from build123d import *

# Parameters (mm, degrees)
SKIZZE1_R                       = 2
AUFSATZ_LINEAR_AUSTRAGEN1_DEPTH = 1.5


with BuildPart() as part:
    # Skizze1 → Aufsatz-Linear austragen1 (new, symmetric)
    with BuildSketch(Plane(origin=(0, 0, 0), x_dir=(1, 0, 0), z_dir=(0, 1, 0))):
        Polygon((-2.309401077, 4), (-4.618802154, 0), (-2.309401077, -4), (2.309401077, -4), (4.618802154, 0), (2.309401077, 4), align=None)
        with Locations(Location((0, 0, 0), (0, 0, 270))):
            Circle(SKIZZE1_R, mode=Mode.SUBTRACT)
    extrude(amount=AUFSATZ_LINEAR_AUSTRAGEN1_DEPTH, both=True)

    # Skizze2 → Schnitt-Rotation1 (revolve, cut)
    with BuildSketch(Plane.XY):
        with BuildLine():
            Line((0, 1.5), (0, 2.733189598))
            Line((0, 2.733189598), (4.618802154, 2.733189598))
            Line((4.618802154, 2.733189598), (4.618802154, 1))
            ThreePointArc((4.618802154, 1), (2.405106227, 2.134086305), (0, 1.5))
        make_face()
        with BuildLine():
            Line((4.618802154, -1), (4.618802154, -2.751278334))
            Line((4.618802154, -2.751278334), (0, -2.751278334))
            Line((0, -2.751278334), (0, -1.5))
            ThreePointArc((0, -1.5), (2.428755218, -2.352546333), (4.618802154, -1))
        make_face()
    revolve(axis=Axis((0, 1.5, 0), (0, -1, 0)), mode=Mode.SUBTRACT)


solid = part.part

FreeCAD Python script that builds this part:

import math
import FreeCAD as App
import Part
import Sketcher

V = App.Vector
Q = App.Units.Quantity

doc = App.newDocument("Part")
body = doc.addObject("PartDesign::Body", "Body")

sketch1 = doc.addObject("Sketcher::SketchObject", "Sketch")
body.addObject(sketch1)
sketch1.AttachmentSupport = (doc.XZ_Plane, [""])
sketch1.MapMode = "FlatFace"
sketch1.addGeometry([
    Part.LineSegment(V(-2.3, -4, 0), V(-4.6, 0, 0)),
    Part.LineSegment(V(-4.6, 0, 0), V(-2.3, 4, 0)),
    Part.LineSegment(V(-2.3, 4, 0), V(2.3, 4, 0)),
    Part.LineSegment(V(2.3, 4, 0), V(4.6, 0, 0)),
    Part.LineSegment(V(4.6, 0, 0), V(2.3, -4, 0)),
    Part.LineSegment(V(2.3, -4, 0), V(-2.3, -4, 0)),
    Part.Circle(V(0, 0, 0), V(0, 0, 1), 2),
], False)
sketch1.addConstraint([
    Sketcher.Constraint("Coincident", 0, 2, 1, 1),
    Sketcher.Constraint("Coincident", 1, 2, 2, 1),
    Sketcher.Constraint("Coincident", 2, 2, 3, 1),
    Sketcher.Constraint("Coincident", 3, 2, 4, 1),
    Sketcher.Constraint("Coincident", 4, 2, 5, 1),
    Sketcher.Constraint("Coincident", 5, 2, 0, 1),
    Sketcher.Constraint("Horizontal", 2),
    Sketcher.Constraint("Horizontal", 5),
    Sketcher.Constraint("Coincident", 6, 3, -1, 1),
    Sketcher.Constraint("Symmetric", 0, 2, 3, 2, -1, 1),
    Sketcher.Constraint("Symmetric", 1, 2, 4, 2, -1, 1),
    Sketcher.Constraint("PointOnObject", 0, 2, -1),
    Sketcher.Constraint("Parallel", 0, 3),
    Sketcher.Constraint("Vertical", 2, 2, 4, 2),
    Sketcher.Constraint("Diameter", 6, Q("4 mm")),
    Sketcher.Constraint("Angle", 0, Q("120 deg")),
    Sketcher.Constraint("DistanceY", -1, 1, 1, 2, Q("4 mm")),
    Sketcher.Constraint("DistanceX", 1, 2, -1, 1, Q("2.309401 mm")),
])
pad1 = doc.addObject("PartDesign::Pad", "Pad")
body.addObject(pad1)
pad1.Profile = sketch1
pad1.Length = 3
pad1.Midplane = True

sketch2 = doc.addObject("Sketcher::SketchObject", "Sketch001")
body.addObject(sketch2)
sketch2.AttachmentSupport = (doc.XY_Plane, [""])
sketch2.MapMode = "FlatFace"
sketch2.addGeometry([
    Part.LineSegment(V(0, 2.7, 0), V(0, 1.5, 0)),
    Part.ArcOfCircle(Part.Circle(V(2, -1.3, 0), V(0, 0, 1), 3.5), math.radians(42), math.radians(126)),
    Part.LineSegment(V(4.6, 1, 0), V(4.6, 2.7, 0)),
    Part.LineSegment(V(4.6, 2.7, 0), V(0, 2.7, 0)),
    Part.LineSegment(V(4.6, -2.8, 0), V(4.6, -1, 0)),
    Part.ArcOfCircle(Part.Circle(V(2.1, 0.6, 0), V(0, 0, 1), 3), math.radians(-135), math.radians(-33)),
    Part.LineSegment(V(0, -1.5, 0), V(0, -2.8, 0)),
    Part.LineSegment(V(0, -2.8, 0), V(4.6, -2.8, 0)),
], False)
sketch2.addConstraint([
    Sketcher.Constraint("Coincident", 0, 2, 1, 2),
    Sketcher.Constraint("Coincident", 1, 1, 2, 1),
    Sketcher.Constraint("Coincident", 2, 2, 3, 1),
    Sketcher.Constraint("Coincident", 3, 2, 0, 1),
    Sketcher.Constraint("Coincident", 4, 2, 5, 2),
    Sketcher.Constraint("Coincident", 5, 1, 6, 1),
    Sketcher.Constraint("Coincident", 6, 2, 7, 1),
    Sketcher.Constraint("Coincident", 7, 2, 4, 1),
    Sketcher.Constraint("Vertical", 0),
    Sketcher.Constraint("Vertical", 2),
    Sketcher.Constraint("Horizontal", 3),
    Sketcher.Constraint("Vertical", 4),
    Sketcher.Constraint("Vertical", 6),
    Sketcher.Constraint("Horizontal", 7),
    Sketcher.Constraint("Symmetric", 0, 2, 5, 1, -1, 1),
    Sketcher.Constraint("Symmetric", 1, 1, 4, 2, -1),
    Sketcher.Constraint("PointOnObject", 0, 2, -2),
    Sketcher.Constraint("DistanceY", -1, 1, 1, 1, Q("1 mm")),
    Sketcher.Constraint("DistanceY", 5, 1, 0, 2, Q("3 mm")),
    Sketcher.Constraint("Radius", 1, Q("3.478545 mm")),
    Sketcher.Constraint("Radius", 5, Q("2.987268 mm")),
    Sketcher.Constraint("DistanceY", 0, 2, 0, 1, Q("1.23319 mm")),
    Sketcher.Constraint("DistanceY", 4, 1, 4, 2, Q("1.751278 mm")),
    Sketcher.Constraint("DistanceX", 3, 2, 3, 1, Q("4.618802 mm")),
])
groove = doc.addObject("PartDesign::Groove", "Groove")
body.addObject(groove)
groove.Profile = sketch2
groove.ReferenceAxis = (sketch2, ["V_Axis"])
groove.Angle = 360

doc.recompute()
